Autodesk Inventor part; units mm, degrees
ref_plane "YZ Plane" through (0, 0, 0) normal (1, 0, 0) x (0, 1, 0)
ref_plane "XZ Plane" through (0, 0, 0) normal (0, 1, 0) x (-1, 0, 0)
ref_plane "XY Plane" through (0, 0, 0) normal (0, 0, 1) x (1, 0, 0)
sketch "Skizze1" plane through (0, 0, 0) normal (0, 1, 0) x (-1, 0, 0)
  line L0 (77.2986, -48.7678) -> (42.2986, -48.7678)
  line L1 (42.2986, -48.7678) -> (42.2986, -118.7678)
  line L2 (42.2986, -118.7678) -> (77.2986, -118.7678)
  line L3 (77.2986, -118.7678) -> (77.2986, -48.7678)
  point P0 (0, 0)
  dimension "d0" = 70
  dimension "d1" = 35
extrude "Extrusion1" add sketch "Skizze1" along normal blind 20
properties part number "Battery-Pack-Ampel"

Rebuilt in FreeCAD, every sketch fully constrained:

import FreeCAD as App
import Part
import Sketcher

V = App.Vector


def add_polygon(sketch, points):
    """Adds a closed chain of lines whose ends are joined by coincident constraints."""
    first, n = sketch.GeometryCount, len(points)
    for a, b in zip(points, points[1:] + points[:1]):
        sketch.addGeometry(Part.LineSegment(App.Vector(*a, 0), App.Vector(*b, 0)), False)
    for i in range(n):
        sketch.addConstraint(Sketcher.Constraint("Coincident", first + i, 2, first + (i + 1) % n, 1))

doc = App.newDocument("Part")
body = doc.addObject("PartDesign::Body", "Body")

# Sketch on XZ plane
sketch1 = body.newObject("Sketcher::SketchObject", "Sketch")
sketch1.AttachmentSupport = (doc.getObject("XZ_Plane"), [""])
sketch1.MapMode = "FlatFace"
add_polygon(sketch1, [(-77, -119), (-77, -49), (-42, -49), (-42, -119)])  # lines 0-3
sketch1.addConstraint(Sketcher.Constraint("Vertical", 0))
sketch1.addConstraint(Sketcher.Constraint("Horizontal", 1))
sketch1.addConstraint(Sketcher.Constraint("Vertical", 2))
sketch1.addConstraint(Sketcher.Constraint("Horizontal", 3))
sketch1.addConstraint(Sketcher.Constraint("DistanceX", 1, 1, 1, 2, 35.0))
sketch1.addConstraint(Sketcher.Constraint("DistanceY", 0, 1, 0, 2, 70.0))
sketch1.addConstraint(Sketcher.Constraint("DistanceX", 0, 2, -1, 1, 77.2986))
sketch1.addConstraint(Sketcher.Constraint("DistanceY", 0, 2, -1, 1, 48.7678))
pad1 = body.newObject("PartDesign::Pad", "Pad")
pad1.Profile = sketch1
pad1.Length = 20
pad1.Reversed = True

doc.recompute()
